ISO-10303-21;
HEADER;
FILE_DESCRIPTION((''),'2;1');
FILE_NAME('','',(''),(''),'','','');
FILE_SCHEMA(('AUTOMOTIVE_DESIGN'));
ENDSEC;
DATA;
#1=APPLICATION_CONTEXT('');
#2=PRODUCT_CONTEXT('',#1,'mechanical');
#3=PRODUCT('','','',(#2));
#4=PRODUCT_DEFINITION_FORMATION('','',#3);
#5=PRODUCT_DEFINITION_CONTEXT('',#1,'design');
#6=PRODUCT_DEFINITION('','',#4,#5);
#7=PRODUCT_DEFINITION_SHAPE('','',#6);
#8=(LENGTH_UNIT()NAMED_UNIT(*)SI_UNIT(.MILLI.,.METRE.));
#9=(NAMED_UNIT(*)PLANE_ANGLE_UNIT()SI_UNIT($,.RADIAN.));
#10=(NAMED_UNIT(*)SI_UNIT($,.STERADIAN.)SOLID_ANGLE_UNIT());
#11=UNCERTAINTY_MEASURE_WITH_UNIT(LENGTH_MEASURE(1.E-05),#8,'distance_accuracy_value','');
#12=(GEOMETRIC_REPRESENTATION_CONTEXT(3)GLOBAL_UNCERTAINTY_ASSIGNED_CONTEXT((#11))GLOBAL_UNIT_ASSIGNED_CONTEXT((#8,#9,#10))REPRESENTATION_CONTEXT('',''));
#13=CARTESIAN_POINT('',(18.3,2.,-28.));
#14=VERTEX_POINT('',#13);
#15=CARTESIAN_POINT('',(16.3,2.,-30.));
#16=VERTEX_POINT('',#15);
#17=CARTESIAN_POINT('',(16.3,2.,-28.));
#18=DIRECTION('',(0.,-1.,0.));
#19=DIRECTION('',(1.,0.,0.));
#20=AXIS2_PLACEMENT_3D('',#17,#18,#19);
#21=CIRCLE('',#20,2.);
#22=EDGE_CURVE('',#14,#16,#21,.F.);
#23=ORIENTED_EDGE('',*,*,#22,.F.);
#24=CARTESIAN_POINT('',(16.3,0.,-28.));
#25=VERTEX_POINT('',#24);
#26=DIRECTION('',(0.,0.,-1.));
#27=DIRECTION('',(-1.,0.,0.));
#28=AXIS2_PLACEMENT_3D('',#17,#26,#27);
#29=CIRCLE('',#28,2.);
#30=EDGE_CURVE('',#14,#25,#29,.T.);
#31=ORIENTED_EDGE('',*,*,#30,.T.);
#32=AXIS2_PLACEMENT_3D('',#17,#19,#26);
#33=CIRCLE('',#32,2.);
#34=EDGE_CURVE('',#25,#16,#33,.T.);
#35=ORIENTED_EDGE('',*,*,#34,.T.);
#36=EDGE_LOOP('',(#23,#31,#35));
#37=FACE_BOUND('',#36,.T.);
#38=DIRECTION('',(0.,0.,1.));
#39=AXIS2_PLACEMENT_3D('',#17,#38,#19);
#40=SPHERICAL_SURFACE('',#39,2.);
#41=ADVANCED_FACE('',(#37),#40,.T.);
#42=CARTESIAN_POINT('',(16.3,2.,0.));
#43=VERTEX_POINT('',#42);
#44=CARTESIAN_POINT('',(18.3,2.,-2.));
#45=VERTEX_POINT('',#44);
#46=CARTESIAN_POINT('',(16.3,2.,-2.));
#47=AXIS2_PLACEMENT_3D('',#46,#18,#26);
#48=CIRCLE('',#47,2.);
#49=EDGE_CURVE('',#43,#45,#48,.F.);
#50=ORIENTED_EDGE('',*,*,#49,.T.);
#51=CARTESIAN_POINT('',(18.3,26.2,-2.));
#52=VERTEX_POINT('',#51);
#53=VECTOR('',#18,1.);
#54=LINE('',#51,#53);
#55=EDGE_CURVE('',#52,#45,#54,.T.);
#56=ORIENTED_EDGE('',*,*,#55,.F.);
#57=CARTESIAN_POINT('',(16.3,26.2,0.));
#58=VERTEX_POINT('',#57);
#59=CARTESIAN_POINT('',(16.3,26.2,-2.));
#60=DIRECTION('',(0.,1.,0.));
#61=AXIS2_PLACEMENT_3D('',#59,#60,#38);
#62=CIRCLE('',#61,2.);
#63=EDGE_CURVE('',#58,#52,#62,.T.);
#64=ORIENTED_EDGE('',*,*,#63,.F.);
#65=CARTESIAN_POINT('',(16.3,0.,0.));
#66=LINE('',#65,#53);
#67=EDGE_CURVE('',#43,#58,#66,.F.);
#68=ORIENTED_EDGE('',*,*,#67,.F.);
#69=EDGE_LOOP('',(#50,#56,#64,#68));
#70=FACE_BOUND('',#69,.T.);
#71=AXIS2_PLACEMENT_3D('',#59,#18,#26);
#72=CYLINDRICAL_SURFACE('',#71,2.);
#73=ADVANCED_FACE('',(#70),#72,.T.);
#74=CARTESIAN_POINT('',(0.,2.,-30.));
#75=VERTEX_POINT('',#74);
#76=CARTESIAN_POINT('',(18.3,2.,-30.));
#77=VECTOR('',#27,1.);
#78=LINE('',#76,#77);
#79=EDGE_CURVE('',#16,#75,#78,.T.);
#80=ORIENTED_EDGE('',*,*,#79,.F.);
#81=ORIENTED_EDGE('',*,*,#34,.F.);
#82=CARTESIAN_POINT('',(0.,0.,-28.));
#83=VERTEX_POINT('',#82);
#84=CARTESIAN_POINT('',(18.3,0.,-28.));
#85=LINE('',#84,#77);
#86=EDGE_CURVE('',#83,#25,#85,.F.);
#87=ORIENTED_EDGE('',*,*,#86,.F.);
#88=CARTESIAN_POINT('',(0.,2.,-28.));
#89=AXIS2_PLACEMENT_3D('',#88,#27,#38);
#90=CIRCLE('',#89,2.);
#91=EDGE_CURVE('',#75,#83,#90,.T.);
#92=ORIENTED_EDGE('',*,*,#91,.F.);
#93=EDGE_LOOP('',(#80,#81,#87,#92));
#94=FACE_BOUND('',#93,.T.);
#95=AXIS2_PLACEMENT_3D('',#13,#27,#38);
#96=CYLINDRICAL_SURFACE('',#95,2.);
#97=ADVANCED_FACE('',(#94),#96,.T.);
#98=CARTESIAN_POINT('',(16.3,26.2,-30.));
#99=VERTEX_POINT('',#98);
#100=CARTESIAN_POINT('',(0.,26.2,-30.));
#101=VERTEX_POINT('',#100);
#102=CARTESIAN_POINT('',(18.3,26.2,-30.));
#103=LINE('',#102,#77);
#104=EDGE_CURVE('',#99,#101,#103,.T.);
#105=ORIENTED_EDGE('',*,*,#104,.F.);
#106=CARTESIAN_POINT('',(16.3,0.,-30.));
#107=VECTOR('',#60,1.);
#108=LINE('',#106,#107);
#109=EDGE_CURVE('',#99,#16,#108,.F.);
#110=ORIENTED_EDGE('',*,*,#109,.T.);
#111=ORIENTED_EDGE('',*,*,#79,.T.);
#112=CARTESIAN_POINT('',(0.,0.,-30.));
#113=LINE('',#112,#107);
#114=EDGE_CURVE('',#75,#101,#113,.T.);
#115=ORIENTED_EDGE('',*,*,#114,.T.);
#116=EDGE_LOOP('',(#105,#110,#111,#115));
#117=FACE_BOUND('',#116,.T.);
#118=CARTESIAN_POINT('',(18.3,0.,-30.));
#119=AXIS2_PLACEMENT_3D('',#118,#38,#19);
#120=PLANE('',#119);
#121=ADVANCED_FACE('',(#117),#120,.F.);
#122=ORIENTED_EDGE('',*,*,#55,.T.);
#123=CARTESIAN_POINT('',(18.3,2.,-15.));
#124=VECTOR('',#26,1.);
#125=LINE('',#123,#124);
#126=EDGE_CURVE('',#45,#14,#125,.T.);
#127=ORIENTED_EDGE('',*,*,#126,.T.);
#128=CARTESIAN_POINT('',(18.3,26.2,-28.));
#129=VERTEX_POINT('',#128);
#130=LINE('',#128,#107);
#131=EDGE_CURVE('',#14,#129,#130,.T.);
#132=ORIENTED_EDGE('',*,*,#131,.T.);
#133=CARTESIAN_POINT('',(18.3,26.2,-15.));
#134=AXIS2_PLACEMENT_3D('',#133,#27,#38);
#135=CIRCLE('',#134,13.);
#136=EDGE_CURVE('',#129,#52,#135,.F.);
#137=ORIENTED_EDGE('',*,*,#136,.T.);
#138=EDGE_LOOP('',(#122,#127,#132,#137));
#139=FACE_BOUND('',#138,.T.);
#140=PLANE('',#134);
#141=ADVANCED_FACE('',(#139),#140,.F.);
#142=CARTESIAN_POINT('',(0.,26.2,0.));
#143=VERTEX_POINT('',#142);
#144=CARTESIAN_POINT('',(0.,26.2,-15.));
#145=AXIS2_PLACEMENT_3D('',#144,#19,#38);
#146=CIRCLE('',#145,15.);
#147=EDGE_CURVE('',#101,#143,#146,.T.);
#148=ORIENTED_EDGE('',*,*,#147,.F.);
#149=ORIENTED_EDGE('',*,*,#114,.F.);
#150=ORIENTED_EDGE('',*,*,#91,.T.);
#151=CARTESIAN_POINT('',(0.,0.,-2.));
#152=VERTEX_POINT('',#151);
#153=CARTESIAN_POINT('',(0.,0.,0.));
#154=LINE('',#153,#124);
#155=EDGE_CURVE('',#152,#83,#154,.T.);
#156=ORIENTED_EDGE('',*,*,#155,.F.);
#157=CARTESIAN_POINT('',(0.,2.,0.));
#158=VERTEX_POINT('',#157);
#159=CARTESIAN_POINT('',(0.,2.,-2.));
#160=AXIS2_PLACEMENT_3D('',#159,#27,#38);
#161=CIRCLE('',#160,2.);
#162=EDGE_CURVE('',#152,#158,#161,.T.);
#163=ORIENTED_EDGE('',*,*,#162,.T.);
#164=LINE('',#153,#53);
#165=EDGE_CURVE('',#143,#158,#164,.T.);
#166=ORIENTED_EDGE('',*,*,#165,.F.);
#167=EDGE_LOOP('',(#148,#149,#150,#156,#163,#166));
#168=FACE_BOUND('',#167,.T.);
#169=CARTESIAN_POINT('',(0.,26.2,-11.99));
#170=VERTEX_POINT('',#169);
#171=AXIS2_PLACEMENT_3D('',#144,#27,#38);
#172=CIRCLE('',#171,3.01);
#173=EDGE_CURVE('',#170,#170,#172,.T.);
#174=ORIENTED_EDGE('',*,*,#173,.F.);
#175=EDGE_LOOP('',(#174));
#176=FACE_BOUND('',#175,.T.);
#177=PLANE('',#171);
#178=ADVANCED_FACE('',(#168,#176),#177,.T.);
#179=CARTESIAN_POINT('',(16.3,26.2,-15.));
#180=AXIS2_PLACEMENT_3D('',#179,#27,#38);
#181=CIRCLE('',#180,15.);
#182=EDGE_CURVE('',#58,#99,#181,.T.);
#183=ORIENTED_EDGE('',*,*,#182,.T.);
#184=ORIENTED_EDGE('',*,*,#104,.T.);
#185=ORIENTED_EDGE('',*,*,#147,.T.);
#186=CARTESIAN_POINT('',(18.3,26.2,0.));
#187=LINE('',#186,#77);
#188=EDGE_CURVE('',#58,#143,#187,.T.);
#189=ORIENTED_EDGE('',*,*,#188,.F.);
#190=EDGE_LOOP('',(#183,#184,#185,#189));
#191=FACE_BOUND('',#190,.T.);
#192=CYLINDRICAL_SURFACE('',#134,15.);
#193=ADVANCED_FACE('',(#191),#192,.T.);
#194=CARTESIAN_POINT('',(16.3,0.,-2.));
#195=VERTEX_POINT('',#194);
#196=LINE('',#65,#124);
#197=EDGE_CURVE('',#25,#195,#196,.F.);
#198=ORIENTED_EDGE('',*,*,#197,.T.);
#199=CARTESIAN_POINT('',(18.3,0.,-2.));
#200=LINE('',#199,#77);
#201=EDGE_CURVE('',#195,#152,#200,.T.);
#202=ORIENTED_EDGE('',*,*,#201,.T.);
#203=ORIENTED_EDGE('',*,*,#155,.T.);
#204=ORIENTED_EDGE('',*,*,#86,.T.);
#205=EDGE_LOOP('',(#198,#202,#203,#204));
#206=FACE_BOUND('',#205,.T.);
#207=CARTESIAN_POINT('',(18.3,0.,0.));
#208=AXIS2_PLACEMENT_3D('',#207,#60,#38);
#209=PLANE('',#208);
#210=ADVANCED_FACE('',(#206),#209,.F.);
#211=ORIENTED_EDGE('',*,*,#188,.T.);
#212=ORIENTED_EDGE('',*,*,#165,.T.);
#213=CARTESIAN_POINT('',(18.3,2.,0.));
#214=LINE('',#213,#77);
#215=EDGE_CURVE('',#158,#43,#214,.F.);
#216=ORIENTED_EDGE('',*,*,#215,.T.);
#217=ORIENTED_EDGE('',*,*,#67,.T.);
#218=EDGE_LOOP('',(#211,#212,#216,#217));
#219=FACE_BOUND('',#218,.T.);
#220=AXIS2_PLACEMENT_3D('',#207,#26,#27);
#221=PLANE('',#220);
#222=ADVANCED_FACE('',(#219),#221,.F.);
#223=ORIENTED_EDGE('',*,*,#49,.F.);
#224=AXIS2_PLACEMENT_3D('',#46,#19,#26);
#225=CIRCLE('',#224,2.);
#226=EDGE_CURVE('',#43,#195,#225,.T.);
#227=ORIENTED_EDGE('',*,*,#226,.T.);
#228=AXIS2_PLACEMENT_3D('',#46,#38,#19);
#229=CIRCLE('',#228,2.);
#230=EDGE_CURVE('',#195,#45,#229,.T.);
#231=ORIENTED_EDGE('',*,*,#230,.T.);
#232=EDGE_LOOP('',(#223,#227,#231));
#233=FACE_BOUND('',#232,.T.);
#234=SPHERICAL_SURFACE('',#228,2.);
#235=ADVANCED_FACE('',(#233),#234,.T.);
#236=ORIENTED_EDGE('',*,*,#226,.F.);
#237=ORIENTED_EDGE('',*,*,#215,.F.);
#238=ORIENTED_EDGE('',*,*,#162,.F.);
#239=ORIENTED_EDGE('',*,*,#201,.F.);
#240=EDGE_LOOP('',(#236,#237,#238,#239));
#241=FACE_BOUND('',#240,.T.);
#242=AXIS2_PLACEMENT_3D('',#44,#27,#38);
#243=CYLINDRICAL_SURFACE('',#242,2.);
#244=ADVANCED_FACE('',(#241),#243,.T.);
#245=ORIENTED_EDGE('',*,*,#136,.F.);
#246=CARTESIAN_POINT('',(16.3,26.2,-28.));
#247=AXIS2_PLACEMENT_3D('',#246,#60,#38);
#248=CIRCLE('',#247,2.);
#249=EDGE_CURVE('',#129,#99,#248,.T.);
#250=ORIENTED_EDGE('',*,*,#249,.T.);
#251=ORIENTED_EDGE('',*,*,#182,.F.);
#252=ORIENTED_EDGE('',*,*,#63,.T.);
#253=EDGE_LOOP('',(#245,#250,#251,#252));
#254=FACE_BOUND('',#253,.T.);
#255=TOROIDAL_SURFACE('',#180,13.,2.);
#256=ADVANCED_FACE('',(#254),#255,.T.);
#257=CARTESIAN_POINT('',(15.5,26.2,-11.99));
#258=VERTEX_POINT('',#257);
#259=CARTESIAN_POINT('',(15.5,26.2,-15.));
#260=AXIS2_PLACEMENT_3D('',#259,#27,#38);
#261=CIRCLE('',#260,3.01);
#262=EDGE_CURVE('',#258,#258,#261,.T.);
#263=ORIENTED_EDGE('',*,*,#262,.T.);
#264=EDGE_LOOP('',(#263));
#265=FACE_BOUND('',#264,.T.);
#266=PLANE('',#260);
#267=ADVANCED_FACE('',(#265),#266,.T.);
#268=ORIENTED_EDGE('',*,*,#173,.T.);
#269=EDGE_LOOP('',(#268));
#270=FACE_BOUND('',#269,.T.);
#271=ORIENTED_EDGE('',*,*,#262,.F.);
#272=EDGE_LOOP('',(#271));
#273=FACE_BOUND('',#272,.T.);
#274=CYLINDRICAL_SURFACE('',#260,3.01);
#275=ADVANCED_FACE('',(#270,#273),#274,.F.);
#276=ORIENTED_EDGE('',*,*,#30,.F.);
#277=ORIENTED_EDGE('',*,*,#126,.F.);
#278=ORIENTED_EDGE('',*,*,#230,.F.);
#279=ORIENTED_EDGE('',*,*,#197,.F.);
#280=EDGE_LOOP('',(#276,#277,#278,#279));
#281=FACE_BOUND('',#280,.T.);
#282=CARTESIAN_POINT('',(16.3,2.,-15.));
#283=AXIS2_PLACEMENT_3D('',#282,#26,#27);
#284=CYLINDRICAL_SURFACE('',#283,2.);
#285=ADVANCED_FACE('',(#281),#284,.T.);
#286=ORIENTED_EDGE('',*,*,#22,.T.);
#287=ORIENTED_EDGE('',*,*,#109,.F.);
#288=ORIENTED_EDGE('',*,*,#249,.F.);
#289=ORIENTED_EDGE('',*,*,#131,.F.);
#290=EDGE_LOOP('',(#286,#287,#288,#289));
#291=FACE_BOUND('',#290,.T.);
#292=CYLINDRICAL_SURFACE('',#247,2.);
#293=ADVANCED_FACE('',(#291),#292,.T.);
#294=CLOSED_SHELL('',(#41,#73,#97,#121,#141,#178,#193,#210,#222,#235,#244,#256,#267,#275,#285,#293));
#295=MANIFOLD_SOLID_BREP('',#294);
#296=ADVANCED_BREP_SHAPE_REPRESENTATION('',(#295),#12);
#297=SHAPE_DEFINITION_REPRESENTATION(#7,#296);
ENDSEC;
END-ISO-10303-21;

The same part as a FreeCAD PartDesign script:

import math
import FreeCAD as App
import Part
import Sketcher


def edges_at(feature, points):
    """Names of the edges that pass closest to the given points."""
    edges = feature.Shape.Edges
    near = lambda p: min(range(len(edges)), key=lambda i: edges[i].distToShape(Part.Vertex(*p))[0])
    return sorted({f"Edge{near(p) + 1}" for p in points})

doc = App.newDocument("Part")
body = doc.addObject("PartDesign::Body", "Body")

# Sketch on YZ plane
sketch1 = doc.addObject("Sketcher::SketchObject", "Sketch")
body.addObject(sketch1)
sketch1.AttachmentSupport = (doc.YZ_Plane, [""])
sketch1.MapMode = "FlatFace"
sketch1.addGeometry([
    Part.LineSegment(App.Vector(0, 0, 0), App.Vector(0, -30, 0)),
    Part.LineSegment(App.Vector(0, -30, 0), App.Vector(26, -30, 0)),
    Part.ArcOfCircle(Part.Circle(App.Vector(26, -15, 0), App.Vector(0, 0, 1), 15), math.radians(-90), math.radians(90)),
    Part.LineSegment(App.Vector(26, 0, 0), App.Vector(0, 0, 0)),
], False)
sketch1.addConstraint([
    Sketcher.Constraint("Coincident", 0, 2, 1, 1),
    Sketcher.Constraint("Tangent", 1, 2, 2, 1),
    Sketcher.Constraint("Tangent", 2, 2, 3, 1),
    Sketcher.Constraint("Coincident", 3, 2, 0, 1),
    Sketcher.Constraint("Vertical", 0),
    Sketcher.Constraint("Horizontal", 1),
    Sketcher.Constraint("Horizontal", 3),
    Sketcher.Constraint("Coincident", 3, 2, -1, 1),
    Sketcher.Constraint("Radius", 2, 15.0),
    Sketcher.Constraint("DistanceX", 1, 1, 1, 2, 26.2),
])
pad1 = doc.addObject("PartDesign::Pad", "Pad")
body.addObject(pad1)
pad1.Profile = sketch1
pad1.Length = 18.3

# Sketch on YZ plane
sketch2 = doc.addObject("Sketcher::SketchObject", "Sketch001")
body.addObject(sketch2)
sketch2.AttachmentSupport = (doc.YZ_Plane, [""])
sketch2.MapMode = "FlatFace"
sketch2.addGeometry(Part.Circle(App.Vector(26.2, -15, 0), App.Vector(0, 0, 1), 3), False)
sketch2.addConstraint([
    Sketcher.Constraint("Diameter", 0, 6.02),
    Sketcher.Constraint("DistanceY", 0, 3, -1, 1, 15.0),
    Sketcher.Constraint("DistanceX", -1, 1, 0, 3, 26.2),
])
pocket1 = doc.addObject("PartDesign::Pocket", "Pocket")
body.addObject(pocket1)
pocket1.Profile = sketch2
pocket1.Length = 15.5
pocket1.Reversed = True
doc.recompute()

fillet = doc.addObject("PartDesign::Fillet", "Fillet")
body.addObject(fillet)
fillet.Base = (pocket1, edges_at(pocket1, [
    (18.3, 13.1, -30),
    (18.3, 41.2, -15),
    (18.3, 13.1, 0),
    (18.3, 0, -15),
    (9.15, 0, -30),
    (9.15, 0, 0),
]))
fillet.Radius = 2

doc.recompute()
